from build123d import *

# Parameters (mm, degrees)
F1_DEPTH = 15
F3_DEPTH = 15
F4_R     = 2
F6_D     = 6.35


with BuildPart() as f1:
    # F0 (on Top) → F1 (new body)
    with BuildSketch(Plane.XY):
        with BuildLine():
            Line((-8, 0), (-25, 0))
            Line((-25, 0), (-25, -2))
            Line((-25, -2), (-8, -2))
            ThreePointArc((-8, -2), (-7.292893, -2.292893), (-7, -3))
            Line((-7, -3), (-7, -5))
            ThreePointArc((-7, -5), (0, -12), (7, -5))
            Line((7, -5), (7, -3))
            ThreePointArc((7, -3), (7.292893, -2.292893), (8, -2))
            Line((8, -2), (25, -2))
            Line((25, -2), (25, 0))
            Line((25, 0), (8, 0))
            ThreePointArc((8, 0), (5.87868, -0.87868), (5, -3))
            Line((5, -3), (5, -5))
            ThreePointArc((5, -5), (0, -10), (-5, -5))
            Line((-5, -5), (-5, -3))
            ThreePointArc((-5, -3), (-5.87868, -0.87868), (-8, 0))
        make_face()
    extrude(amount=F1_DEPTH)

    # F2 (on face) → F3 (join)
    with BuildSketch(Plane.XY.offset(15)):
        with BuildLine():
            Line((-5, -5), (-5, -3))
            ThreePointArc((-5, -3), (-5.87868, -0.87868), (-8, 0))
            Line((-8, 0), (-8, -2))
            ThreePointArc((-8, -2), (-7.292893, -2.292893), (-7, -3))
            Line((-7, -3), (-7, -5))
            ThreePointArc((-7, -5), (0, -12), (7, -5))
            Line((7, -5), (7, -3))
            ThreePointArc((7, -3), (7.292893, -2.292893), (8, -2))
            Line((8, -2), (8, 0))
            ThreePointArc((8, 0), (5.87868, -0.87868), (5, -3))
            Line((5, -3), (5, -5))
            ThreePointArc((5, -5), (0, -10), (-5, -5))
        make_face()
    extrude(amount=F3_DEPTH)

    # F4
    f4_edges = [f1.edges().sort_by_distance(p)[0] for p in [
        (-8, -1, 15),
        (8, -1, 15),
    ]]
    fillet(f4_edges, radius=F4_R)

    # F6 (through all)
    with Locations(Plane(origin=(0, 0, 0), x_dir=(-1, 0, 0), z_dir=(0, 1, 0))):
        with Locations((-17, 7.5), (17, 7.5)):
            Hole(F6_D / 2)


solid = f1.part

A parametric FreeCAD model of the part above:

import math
import FreeCAD as App
import Part
import Sketcher

V = App.Vector
Q = App.Units.Quantity


def edges_at(feature, points):
    """Names of the edges that pass closest to the given points."""
    edges = feature.Shape.Edges
    near = lambda p: min(range(len(edges)), key=lambda i: edges[i].distToShape(Part.Vertex(*p))[0])
    return sorted({f"Edge{near(p) + 1}" for p in points})

doc = App.newDocument("Part")
body = doc.addObject("PartDesign::Body", "Body")

# Sketch on XY plane
sketch1 = doc.addObject("Sketcher::SketchObject", "Sketch")
body.addObject(sketch1)
sketch1.AttachmentSupport = (doc.XY_Plane, [""])
sketch1.MapMode = "FlatFace"
sketch1.addGeometry([
    Part.LineSegment(V(-8, 0, 0), V(-25, 0, 0)),  # 0
    Part.LineSegment(V(-25, 0, 0), V(-25, -2, 0)),  # 1
    Part.LineSegment(V(-25, -2, 0), V(-8, -2, 0)),  # 2
    Part.ArcOfCircle(Part.Circle(V(-8, -3, 0), V(0, 0, 1), 1), math.radians(0), math.radians(90)),  # 3
    Part.LineSegment(V(-7, -3, 0), V(-7, -5, 0)),  # 4
    Part.ArcOfCircle(Part.Circle(V(0, -5, 0), V(0, 0, 1), 7), math.radians(180), math.radians(360)),  # 5
    Part.LineSegment(V(7, -5, 0), V(7, -3, 0)),  # 6
    Part.ArcOfCircle(Part.Circle(V(8, -3, 0), V(0, 0, 1), 1), math.radians(90), math.radians(180)),  # 7
    Part.LineSegment(V(8, -2, 0), V(25, -2, 0)),  # 8
    Part.LineSegment(V(25, -2, 0), V(25, 0, 0)),  # 9
    Part.LineSegment(V(25, 0, 0), V(8, 0, 0)),  # 10
    Part.ArcOfCircle(Part.Circle(V(8, -3, 0), V(0, 0, 1), 3), math.radians(90), math.radians(180)),  # 11
    Part.LineSegment(V(5, -3, 0), V(5, -5, 0)),  # 12
    Part.ArcOfCircle(Part.Circle(V(0, -5, 0), V(0, 0, 1), 5), math.radians(180), math.radians(360)),  # 13
    Part.LineSegment(V(-5, -5, 0), V(-5, -3, 0)),  # 14
    Part.ArcOfCircle(Part.Circle(V(-8, -3, 0), V(0, 0, 1), 3), math.radians(0), math.radians(90)),  # 15
], False)
sketch1.addConstraint([
    Sketcher.Constraint("Coincident", 0, 2, 1, 1),
    Sketcher.Constraint("Coincident", 1, 2, 2, 1),
    Sketcher.Constraint("Tangent", 2, 2, 3, 2),
    Sketcher.Constraint("Tangent", 3, 1, 4, 1),
    Sketcher.Constraint("Tangent", 4, 2, 5, 1),
    Sketcher.Constraint("Tangent", 5, 2, 6, 1),
    Sketcher.Constraint("Tangent", 6, 2, 7, 2),
    Sketcher.Constraint("Tangent", 7, 1, 8, 1),
    Sketcher.Constraint("Coincident", 8, 2, 9, 1),
    Sketcher.Constraint("Coincident", 9, 2, 10, 1),
    Sketcher.Constraint("Tangent", 10, 2, 11, 1),
    Sketcher.Constraint("Tangent", 11, 2, 12, 1),
    Sketcher.Constraint("Tangent", 12, 2, 13, 2),
    Sketcher.Constraint("Tangent", 13, 1, 14, 1),
    Sketcher.Constraint("Tangent", 14, 2, 15, 1),
    Sketcher.Constraint("Tangent", 15, 2, 0, 1),
    Sketcher.Constraint("Horizontal", 0),
    Sketcher.Constraint("Vertical", 1),
    Sketcher.Constraint("Horizontal", 2),
    Sketcher.Constraint("Vertical", 4),
    Sketcher.Constraint("Vertical", 6),
    Sketcher.Constraint("Horizontal", 8),
    Sketcher.Constraint("Vertical", 9),
    Sketcher.Constraint("Horizontal", 10),
    Sketcher.Constraint("Vertical", 12),
    Sketcher.Constraint("Vertical", 14),
    Sketcher.Constraint("Coincident", 11, 3, 7, 3),
    Sketcher.Constraint("Coincident", 13, 3, 5, 3),
    Sketcher.Constraint("Coincident", 15, 3, 3, 3),
    Sketcher.Constraint("Equal", 3, 7),
    Sketcher.Constraint("Symmetric", 0, 2, 9, 2, -1, 1),
    Sketcher.Constraint("Symmetric", 3, 3, 7, 3, -2),
    Sketcher.Constraint("Equal", 1, 4),
    Sketcher.Constraint("Radius", 3, Q("0.999999 mm")),
    Sketcher.Constraint("Radius", 5, Q("7 mm")),
    Sketcher.Constraint("Radius", 11, Q("3.000001 mm")),
    Sketcher.Constraint("DistanceX", 0, 2, 0, 1, Q("17 mm")),
])
pad1 = doc.addObject("PartDesign::Pad", "Pad")
body.addObject(pad1)
pad1.Profile = sketch1
pad1.Length = 15

# Sketch on XY plane
sketch2 = doc.addObject("Sketcher::SketchObject", "Sketch001")
body.addObject(sketch2)
sketch2.AttachmentSupport = (doc.XY_Plane, [""])
sketch2.MapMode = "FlatFace"
sketch2.AttachmentOffset = App.Placement(V(0, 0, 15), App.Rotation())
sketch2.addGeometry([
    Part.LineSegment(V(-5, -5, 0), V(-5, -3, 0)),  # 0
    Part.ArcOfCircle(Part.Circle(V(-8, -3, 0), V(0, 0, 1), 3), math.radians(0), math.radians(90)),  # 1
    Part.LineSegment(V(-8, 0, 0), V(-8, -2, 0)),  # 2
    Part.ArcOfCircle(Part.Circle(V(-8, -3, 0), V(0, 0, 1), 1), math.radians(0), math.radians(90)),  # 3
    Part.LineSegment(V(-7, -3, 0), V(-7, -5, 0)),  # 4
    Part.ArcOfCircle(Part.Circle(V(0, -5, 0), V(0, 0, 1), 7), math.radians(180), math.radians(360)),  # 5
    Part.LineSegment(V(7, -5, 0), V(7, -3, 0)),  # 6
    Part.ArcOfCircle(Part.Circle(V(8, -3, 0), V(0, 0, 1), 1), math.radians(90), math.radians(180)),  # 7
    Part.LineSegment(V(8, -2, 0), V(8, 0, 0)),  # 8
    Part.ArcOfCircle(Part.Circle(V(8, -3, 0), V(0, 0, 1), 3), math.radians(90), math.radians(180)),  # 9
    Part.LineSegment(V(5, -3, 0), V(5, -5, 0)),  # 10
    Part.ArcOfCircle(Part.Circle(V(0, -5, 0), V(0, 0, 1), 5), math.radians(180), math.radians(360)),  # 11
], False)
sketch2.addConstraint([
    Sketcher.Constraint("Tangent", 0, 2, 1, 1),
    Sketcher.Constraint("Coincident", 1, 2, 2, 1),
    Sketcher.Constraint("Coincident", 2, 2, 3, 2),
    Sketcher.Constraint("Tangent", 3, 1, 4, 1),
    Sketcher.Constraint("Tangent", 4, 2, 5, 1),
    Sketcher.Constraint("Tangent", 5, 2, 6, 1),
    Sketcher.Constraint("Tangent", 6, 2, 7, 2),
    Sketcher.Constraint("Coincident", 7, 1, 8, 1),
    Sketcher.Constraint("Coincident", 8, 2, 9, 1),
    Sketcher.Constraint("Tangent", 9, 2, 10, 1),
    Sketcher.Constraint("Tangent", 10, 2, 11, 2),
    Sketcher.Constraint("Tangent", 11, 1, 0, 1),
    Sketcher.Constraint("Vertical", 0),
    Sketcher.Constraint("Vertical", 2),
    Sketcher.Constraint("Vertical", 4),
    Sketcher.Constraint("Vertical", 6),
    Sketcher.Constraint("Vertical", 8),
    Sketcher.Constraint("Vertical", 10),
    Sketcher.Constraint("Coincident", 3, 3, 1, 3),
    Sketcher.Constraint("Coincident", 9, 3, 7, 3),
    Sketcher.Constraint("Coincident", 11, 3, 5, 3),
    Sketcher.Constraint("Equal", 3, 7),
    Sketcher.Constraint("Symmetric", 1, 2, 8, 2, -1, 1),
    Sketcher.Constraint("Symmetric", 1, 3, 7, 3, -2),
    Sketcher.Constraint("Vertical", 3, 3, 1, 2),
    Sketcher.Constraint("Equal", 0, 2),
    Sketcher.Constraint("Radius", 1, Q("3.000001 mm")),
    Sketcher.Constraint("Radius", 3, Q("0.999999 mm")),
    Sketcher.Constraint("Radius", 5, Q("7 mm")),
])
pad2 = doc.addObject("PartDesign::Pad", "Pad001")
body.addObject(pad2)
pad2.Profile = sketch2
pad2.Length = 15
doc.recompute()

fillet = doc.addObject("PartDesign::Fillet", "Fillet")
body.addObject(fillet)
fillet.Base = (pad2, edges_at(pad2, [(-8, -1, 15), (8, -1, 15)]))
fillet.Radius = 2

# Sketch on XZ plane
sketch3 = doc.addObject("Sketcher::SketchObject", "Sketch002")
body.addObject(sketch3)
sketch3.AttachmentSupport = (doc.XZ_Plane, [""])
sketch3.MapMode = "FlatFace"
sketch3.addGeometry([
    Part.Circle(V(17, 7.5, 0), V(0, 0, 1), 3.2),
    Part.Circle(V(-17, 7.5, 0), V(0, 0, 1), 3.2),
], False)
sketch3.addConstraint([
    Sketcher.Constraint("Equal", 0, 1),
    Sketcher.Constraint("Symmetric", 0, 3, 1, 3, -2),
    Sketcher.Constraint("Diameter", 0, Q("6.35 mm")),
    Sketcher.Constraint("DistanceX", -1, 1, 0, 3, Q("17 mm")),
    Sketcher.Constraint("DistanceY", -1, 1, 0, 3, Q("7.5 mm")),
])
doc.recompute()
hole = doc.addObject("PartDesign::Hole", "Hole")
body.addObject(hole)
hole.Profile = sketch3
hole.ThreadType = "None"
hole.Diameter = 6.35
hole.DepthType = "ThroughAll"
hole.Reversed = True

doc.recompute()
